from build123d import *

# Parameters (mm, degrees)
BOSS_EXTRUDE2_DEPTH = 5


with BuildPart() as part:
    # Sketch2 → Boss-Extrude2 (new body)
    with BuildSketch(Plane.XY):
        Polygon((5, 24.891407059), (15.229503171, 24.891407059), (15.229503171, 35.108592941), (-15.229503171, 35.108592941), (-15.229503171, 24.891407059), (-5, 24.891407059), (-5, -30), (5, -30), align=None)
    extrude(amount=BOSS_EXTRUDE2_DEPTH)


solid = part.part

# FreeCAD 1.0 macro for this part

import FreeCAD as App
import Part
import Sketcher
from FreeCAD import Vector
Q = App.Units.Quantity


def add_polygon(sketch, points):
    """Adds a closed chain of lines whose ends are joined by coincident constraints."""
    first, n = sketch.GeometryCount, len(points)
    for a, b in zip(points, points[1:] + points[:1]):
        sketch.addGeometry(Part.LineSegment(App.Vector(*a, 0), App.Vector(*b, 0)), False)
    for i in range(n):
        sketch.addConstraint(Sketcher.Constraint("Coincident", first + i, 2, first + (i + 1) % n, 1))

doc = App.newDocument("Part")
body = doc.addObject("PartDesign::Body", "Body")

# Sketch on XY plane
sketch1 = body.newObject("Sketcher::SketchObject", "Sketch")
sketch1.AttachmentSupport = (doc.getObject("XY_Plane"), [""])
sketch1.MapMode = "FlatFace"
add_polygon(sketch1, [(5, 25), (15, 25), (15, 35), (-15, 35), (-15, 25), (-5, 25), (-5, -30), (5, -30)])  # lines 0-7
sketch1.addConstraint([
    Sketcher.Constraint("Horizontal", 0),
    Sketcher.Constraint("Vertical", 1),
    Sketcher.Constraint("Horizontal", 2),
    Sketcher.Constraint("Vertical", 3),
    Sketcher.Constraint("Horizontal", 4),
    Sketcher.Constraint("Vertical", 5),
    Sketcher.Constraint("Horizontal", 6),
    Sketcher.Constraint("Vertical", 7),
    Sketcher.Constraint("Symmetric", 0, 2, 3, 2, -2),
    Sketcher.Constraint("Equal", 0, 4),
    Sketcher.Constraint("DistanceX", 6, 1, 6, 2, Q("10 mm")),
    Sketcher.Constraint("DistanceY", 5, 2, -1, 1, Q("30 mm")),
    Sketcher.Constraint("DistanceX", 0, 1, 0, 2, Q("10.229503 mm")),
    Sketcher.Constraint("DistanceY", 1, 1, 1, 2, Q("10.217186 mm")),
    Sketcher.Constraint("DistanceY", 5, 2, 5, 1, Q("54.891407 mm")),
])
pad1 = body.newObject("PartDesign::Pad", "Pad")
pad1.Profile = sketch1
pad1.Length = 5

doc.recompute()
